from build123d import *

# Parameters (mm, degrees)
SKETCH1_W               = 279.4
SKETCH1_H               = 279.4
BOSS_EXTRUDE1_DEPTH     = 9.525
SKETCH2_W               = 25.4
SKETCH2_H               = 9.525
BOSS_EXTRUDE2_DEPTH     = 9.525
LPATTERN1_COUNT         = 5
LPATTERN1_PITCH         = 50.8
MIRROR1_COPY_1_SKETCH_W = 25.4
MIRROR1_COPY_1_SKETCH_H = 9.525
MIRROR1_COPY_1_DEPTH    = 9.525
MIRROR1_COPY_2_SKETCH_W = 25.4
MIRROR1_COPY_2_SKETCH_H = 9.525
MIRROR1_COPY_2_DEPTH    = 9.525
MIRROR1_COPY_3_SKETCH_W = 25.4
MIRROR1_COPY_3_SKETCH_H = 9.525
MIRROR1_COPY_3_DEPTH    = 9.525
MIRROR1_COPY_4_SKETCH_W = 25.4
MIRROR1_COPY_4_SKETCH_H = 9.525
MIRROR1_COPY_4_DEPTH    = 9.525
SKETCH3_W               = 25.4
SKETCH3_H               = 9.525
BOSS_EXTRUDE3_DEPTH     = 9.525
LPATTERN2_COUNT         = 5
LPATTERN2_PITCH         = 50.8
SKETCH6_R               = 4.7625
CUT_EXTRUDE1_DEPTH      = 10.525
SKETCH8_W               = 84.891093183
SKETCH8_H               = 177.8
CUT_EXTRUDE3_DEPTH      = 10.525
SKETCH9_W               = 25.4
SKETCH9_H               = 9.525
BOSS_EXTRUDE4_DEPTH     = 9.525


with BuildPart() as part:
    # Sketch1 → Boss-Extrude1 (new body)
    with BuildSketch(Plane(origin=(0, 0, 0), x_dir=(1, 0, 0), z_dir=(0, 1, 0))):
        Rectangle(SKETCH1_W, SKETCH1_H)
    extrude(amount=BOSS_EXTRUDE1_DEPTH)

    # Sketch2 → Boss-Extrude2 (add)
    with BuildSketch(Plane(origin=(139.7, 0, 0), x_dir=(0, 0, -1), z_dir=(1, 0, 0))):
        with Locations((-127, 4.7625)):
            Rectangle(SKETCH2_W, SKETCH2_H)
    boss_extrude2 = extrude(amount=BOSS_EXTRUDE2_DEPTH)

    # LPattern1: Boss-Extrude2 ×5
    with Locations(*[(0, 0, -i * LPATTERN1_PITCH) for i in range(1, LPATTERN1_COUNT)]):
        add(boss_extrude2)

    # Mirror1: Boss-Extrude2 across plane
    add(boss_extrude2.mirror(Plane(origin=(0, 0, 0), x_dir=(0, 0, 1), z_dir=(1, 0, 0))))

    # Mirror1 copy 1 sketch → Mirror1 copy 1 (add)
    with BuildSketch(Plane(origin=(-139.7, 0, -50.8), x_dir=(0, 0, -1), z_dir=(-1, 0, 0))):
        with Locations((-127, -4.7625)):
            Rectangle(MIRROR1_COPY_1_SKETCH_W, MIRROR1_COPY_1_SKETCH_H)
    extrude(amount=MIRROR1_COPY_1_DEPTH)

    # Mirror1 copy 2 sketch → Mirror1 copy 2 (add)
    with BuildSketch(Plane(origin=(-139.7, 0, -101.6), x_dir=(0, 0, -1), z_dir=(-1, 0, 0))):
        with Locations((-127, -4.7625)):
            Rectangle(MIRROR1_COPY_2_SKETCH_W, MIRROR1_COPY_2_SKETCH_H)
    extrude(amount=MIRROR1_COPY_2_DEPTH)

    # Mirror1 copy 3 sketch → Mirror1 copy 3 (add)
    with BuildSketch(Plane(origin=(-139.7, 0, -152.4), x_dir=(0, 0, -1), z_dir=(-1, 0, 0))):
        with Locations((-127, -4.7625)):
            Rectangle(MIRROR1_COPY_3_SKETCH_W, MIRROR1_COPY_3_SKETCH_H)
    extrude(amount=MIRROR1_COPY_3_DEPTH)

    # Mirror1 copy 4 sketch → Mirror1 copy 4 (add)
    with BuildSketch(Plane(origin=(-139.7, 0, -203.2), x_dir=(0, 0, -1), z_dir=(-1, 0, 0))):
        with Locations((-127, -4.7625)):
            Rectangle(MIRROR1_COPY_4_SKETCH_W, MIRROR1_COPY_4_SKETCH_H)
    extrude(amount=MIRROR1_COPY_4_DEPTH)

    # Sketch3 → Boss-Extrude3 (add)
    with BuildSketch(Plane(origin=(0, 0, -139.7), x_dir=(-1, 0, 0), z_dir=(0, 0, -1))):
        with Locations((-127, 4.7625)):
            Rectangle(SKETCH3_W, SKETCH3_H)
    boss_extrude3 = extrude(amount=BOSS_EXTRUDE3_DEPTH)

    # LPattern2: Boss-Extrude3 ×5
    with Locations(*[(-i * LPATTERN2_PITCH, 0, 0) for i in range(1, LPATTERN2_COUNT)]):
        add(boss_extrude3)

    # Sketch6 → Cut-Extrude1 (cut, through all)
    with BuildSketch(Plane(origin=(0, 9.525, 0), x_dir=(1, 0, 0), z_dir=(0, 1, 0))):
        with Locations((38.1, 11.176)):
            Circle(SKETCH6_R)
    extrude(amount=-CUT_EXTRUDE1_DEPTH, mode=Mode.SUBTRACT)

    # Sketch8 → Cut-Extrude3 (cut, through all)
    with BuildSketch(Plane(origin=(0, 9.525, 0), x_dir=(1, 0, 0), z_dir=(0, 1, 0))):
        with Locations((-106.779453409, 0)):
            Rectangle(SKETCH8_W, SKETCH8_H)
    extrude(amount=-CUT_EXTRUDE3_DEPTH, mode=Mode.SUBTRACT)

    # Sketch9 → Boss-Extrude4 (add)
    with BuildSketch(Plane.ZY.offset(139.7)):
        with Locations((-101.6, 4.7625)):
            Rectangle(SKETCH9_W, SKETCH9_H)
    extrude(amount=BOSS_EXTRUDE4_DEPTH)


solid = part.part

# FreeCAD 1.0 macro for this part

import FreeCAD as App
import Part
import Sketcher
Q = App.Units.Quantity


def add_polygon(sketch, points):
    """Adds a closed chain of lines whose ends are joined by coincident constraints."""
    first, n = sketch.GeometryCount, len(points)
    for a, b in zip(points, points[1:] + points[:1]):
        sketch.addGeometry(Part.LineSegment(App.Vector(*a, 0), App.Vector(*b, 0)), False)
    for i in range(n):
        sketch.addConstraint(Sketcher.Constraint("Coincident", first + i, 2, first + (i + 1) % n, 1))

doc = App.newDocument("Part")
params = doc.addObject("Spreadsheet::Sheet", "Params")
for row, (alias, value) in enumerate([
    ("sketch1_width", "11 in"),
    ("pad1_length", "0.375 in"),
    ("sketch2_height", "1 in"),
    ("sketch2_width", "0.375 in"),
    ("pad2_length", "0.375 in"),
    ("linearpattern_pitch", "2 in"),
    ("sketch3_height", "1 in"),
    ("sketch3_width", "0.375 in"),
    ("pad3_length", "0.375 in"),
    ("sketch4_height", "1 in"),
    ("sketch4_width", "0.375 in"),
    ("pad4_length", "0.375 in"),
    ("sketch5_height", "1 in"),
    ("sketch5_width", "0.375 in"),
    ("pad5_length", "0.375 in"),
    ("sketch6_height", "1 in"),
    ("sketch6_width", "0.375 in"),
    ("pad6_length", "0.375 in"),
    ("sketch7_width", "1 in"),
    ("sketch7_height", "0.375 in"),
    ("pad7_length", "0.375 in"),
    ("linearpattern2_pitch", "2 in"),
    ("sketch8_diameter", "0.375 in"),
    ("sketch9_height", "7 in"),
    ("sketch10_height", "1 in"),
    ("sketch10_width", "0.375 in"),
    ("pad8_length", "0.375 in"),
], start=1):
    params.set(f"A{row}", alias)
    params.set(f"B{row}", "=" + value)
    params.setAlias(f"B{row}", alias)

body = doc.addObject("PartDesign::Body", "Body")

sketch1 = doc.addObject("Sketcher::SketchObject", "Sketch")
body.addObject(sketch1)
sketch1.AttachmentSupport = (doc.XZ_Plane, [""])
sketch1.MapMode = "FlatFace"
add_polygon(sketch1, [(-139.7, -139.7), (-139.7, 139.7), (139.7, 139.7), (139.7, -139.7)])
sketch1.addConstraint(Sketcher.Constraint("Vertical", 0))
sketch1.addConstraint(Sketcher.Constraint("Horizontal", 1))
sketch1.addConstraint(Sketcher.Constraint("Vertical", 2))
sketch1.addConstraint(Sketcher.Constraint("Horizontal", 3))
sketch1.addConstraint(Sketcher.Constraint("Symmetric", 0, 2, 2, 2, -1, 1))
sketch1.addConstraint(Sketcher.Constraint("Equal", 3, 0))
sketch1.addConstraint(Sketcher.Constraint("DistanceX", 1, 1, 1, 2, Q("11 in")))
sketch1.setExpression("Constraints[10]", "Params.sketch1_width")
pad1 = doc.addObject("PartDesign::Pad", "Pad")
body.addObject(pad1)
pad1.Profile = sketch1
pad1.setExpression("Length", "Params.pad1_length")
pad1.Reversed = True

sketch2 = doc.addObject("Sketcher::SketchObject", "Sketch001")
body.addObject(sketch2)
sketch2.AttachmentSupport = (doc.YZ_Plane, [""])
sketch2.MapMode = "FlatFace"
sketch2.AttachmentOffset = App.Placement(App.Vector(0, 0, 5.5 * 25.4), App.Rotation())
add_polygon(sketch2, [(9.525, 139.7), (0, 139.7), (0, 114.3), (9.525, 114.3)])
sketch2.addConstraint(Sketcher.Constraint("Horizontal", 0))
sketch2.addConstraint(Sketcher.Constraint("Vertical", 1))
sketch2.addConstraint(Sketcher.Constraint("Horizontal", 2))
sketch2.addConstraint(Sketcher.Constraint("Vertical", 3))
sketch2.addConstraint(Sketcher.Constraint("PointOnObject", 0, 2, -2))
sketch2.addConstraint(Sketcher.Constraint("DistanceY", 1, 2, 1, 1, Q("1 in")))
sketch2.addConstraint(Sketcher.Constraint("DistanceY", -1, 1, 0, 2, Q("5.5 in")))
sketch2.addConstraint(Sketcher.Constraint("DistanceX", 0, 2, 0, 1, Q("0.375 in")))
sketch2.setExpression("Constraints[9]", "Params.sketch2_height")
sketch2.setExpression("Constraints[11]", "Params.sketch2_width")
pad2 = doc.addObject("PartDesign::Pad", "Pad001")
body.addObject(pad2)
pad2.Profile = sketch2
pad2.setExpression("Length", "Params.pad2_length")
doc.recompute()

linearpattern = doc.addObject("PartDesign::LinearPattern", "LinearPattern")
body.addObject(linearpattern)
linearpattern.Originals = [pad2]
linearpattern.Direction = (doc.Z_Axis, [""])
linearpattern.Mode = "offset"
linearpattern.setExpression("Offset", "Params.linearpattern_pitch")
linearpattern.Occurrences = 5
linearpattern.Reversed = True
body.Tip = linearpattern
doc.recompute()

mirrored = doc.addObject("PartDesign::Mirrored", "Mirrored")
body.addObject(mirrored)
mirrored.Originals = [pad2]
mirrored.MirrorPlane = (doc.YZ_Plane, [""])
body.Tip = mirrored

sketch3 = doc.addObject("Sketcher::SketchObject", "Sketch002")
body.addObject(sketch3)
sketch3.AttachmentSupport = (doc.YZ_Plane, [""])
sketch3.MapMode = "FlatFace"
sketch3.AttachmentOffset = App.Placement(App.Vector(0, 0, -5.5 * 25.4), App.Rotation())
add_polygon(sketch3, [(0, 88.9), (9.525, 88.9), (9.525, 63.5), (0, 63.5)])
sketch3.addConstraint(Sketcher.Constraint("Horizontal", 0))
sketch3.addConstraint(Sketcher.Constraint("Vertical", 1))
sketch3.addConstraint(Sketcher.Constraint("Horizontal", 2))
sketch3.addConstraint(Sketcher.Constraint("Vertical", 3))
sketch3.addConstraint(Sketcher.Constraint("PointOnObject", 2, 2, -2))
sketch3.addConstraint(Sketcher.Constraint("DistanceY", 1, 2, 1, 1, Q("1 in")))
sketch3.addConstraint(Sketcher.Constraint("DistanceY", -1, 1, 0, 2, Q("3.5 in")))
sketch3.addConstraint(Sketcher.Constraint("DistanceX", 0, 1, 0, 2, Q("0.375 in")))
sketch3.setExpression("Constraints[9]", "Params.sketch3_height")
sketch3.setExpression("Constraints[11]", "Params.sketch3_width")
pad3 = doc.addObject("PartDesign::Pad", "Pad002")
body.addObject(pad3)
pad3.Profile = sketch3
pad3.setExpression("Length", "Params.pad3_length")
pad3.Reversed = True

sketch4 = doc.addObject("Sketcher::SketchObject", "Sketch003")
body.addObject(sketch4)
sketch4.AttachmentSupport = (doc.YZ_Plane, [""])
sketch4.MapMode = "FlatFace"
sketch4.AttachmentOffset = App.Placement(App.Vector(0, 0, -5.5 * 25.4), App.Rotation())
add_polygon(sketch4, [(0, 38.1), (9.525, 38.1), (9.525, 12.7), (0, 12.7)])
sketch4.addConstraint(Sketcher.Constraint("Horizontal", 0))
sketch4.addConstraint(Sketcher.Constraint("Vertical", 1))
sketch4.addConstraint(Sketcher.Constraint("Horizontal", 2))
sketch4.addConstraint(Sketcher.Constraint("Vertical", 3))
sketch4.addConstraint(Sketcher.Constraint("PointOnObject", 2, 2, -2))
sketch4.addConstraint(Sketcher.Constraint("DistanceY", 1, 2, 1, 1, Q("1 in")))
sketch4.addConstraint(Sketcher.Constraint("DistanceY", -1, 1, 0, 2, Q("1.5 in")))
sketch4.addConstraint(Sketcher.Constraint("DistanceX", 0, 1, 0, 2, Q("0.375 in")))
sketch4.setExpression("Constraints[9]", "Params.sketch4_height")
sketch4.setExpression("Constraints[11]", "Params.sketch4_width")
pad4 = doc.addObject("PartDesign::Pad", "Pad003")
body.addObject(pad4)
pad4.Profile = sketch4
pad4.setExpression("Length", "Params.pad4_length")
pad4.Reversed = True

sketch5 = doc.addObject("Sketcher::SketchObject", "Sketch004")
body.addObject(sketch5)
sketch5.AttachmentSupport = (doc.YZ_Plane, [""])
sketch5.MapMode = "FlatFace"
sketch5.AttachmentOffset = App.Placement(App.Vector(0, 0, -5.5 * 25.4), App.Rotation())
add_polygon(sketch5, [(0, -12.7), (9.525, -12.7), (9.525, -38.1), (0, -38.1)])
sketch5.addConstraint(Sketcher.Constraint("Horizontal", 0))
sketch5.addConstraint(Sketcher.Constraint("Vertical", 1))
sketch5.addConstraint(Sketcher.Constraint("Horizontal", 2))
sketch5.addConstraint(Sketcher.Constraint("Vertical", 3))
sketch5.addConstraint(Sketcher.Constraint("PointOnObject", 2, 2, -2))
sketch5.addConstraint(Sketcher.Constraint("DistanceY", 1, 2, 1, 1, Q("1 in")))
sketch5.addConstraint(Sketcher.Constraint("DistanceY", 0, 2, -1, 1, Q("0.5 in")))
sketch5.addConstraint(Sketcher.Constraint("DistanceX", 0, 1, 0, 2, Q("0.375 in")))
sketch5.setExpression("Constraints[9]", "Params.sketch5_height")
sketch5.setExpression("Constraints[11]", "Params.sketch5_width")
pad5 = doc.addObject("PartDesign::Pad", "Pad004")
body.addObject(pad5)
pad5.Profile = sketch5
pad5.setExpression("Length", "Params.pad5_length")
pad5.Reversed = True

sketch6 = doc.addObject("Sketcher::SketchObject", "Sketch005")
body.addObject(sketch6)
sketch6.AttachmentSupport = (doc.YZ_Plane, [""])
sketch6.MapMode = "FlatFace"
sketch6.AttachmentOffset = App.Placement(App.Vector(0, 0, -5.5 * 25.4), App.Rotation())
add_polygon(sketch6, [(0, -63.5), (9.525, -63.5), (9.525, -88.9), (0, -88.9)])
sketch6.addConstraint(Sketcher.Constraint("Horizontal", 0))
sketch6.addConstraint(Sketcher.Constraint("Vertical", 1))
sketch6.addConstraint(Sketcher.Constraint("Horizontal", 2))
sketch6.addConstraint(Sketcher.Constraint("Vertical", 3))
sketch6.addConstraint(Sketcher.Constraint("PointOnObject", 2, 2, -2))
sketch6.addConstraint(Sketcher.Constraint("DistanceY", 1, 2, 1, 1, Q("1 in")))
sketch6.addConstraint(Sketcher.Constraint("DistanceY", 0, 2, -1, 1, Q("2.5 in")))
sketch6.addConstraint(Sketcher.Constraint("DistanceX", 0, 1, 0, 2, Q("0.375 in")))
sketch6.setExpression("Constraints[9]", "Params.sketch6_height")
sketch6.setExpression("Constraints[11]", "Params.sketch6_width")
pad6 = doc.addObject("PartDesign::Pad", "Pad005")
body.addObject(pad6)
pad6.Profile = sketch6
pad6.setExpression("Length", "Params.pad6_length")
pad6.Reversed = True

sketch7 = doc.addObject("Sketcher::SketchObject", "Sketch006")
body.addObject(sketch7)
sketch7.AttachmentSupport = (doc.XY_Plane, [""])
sketch7.MapMode = "FlatFace"
sketch7.AttachmentOffset = App.Placement(App.Vector(0, 0, -5.5 * 25.4), App.Rotation())
add_polygon(sketch7, [(139.7, 9.525), (139.7, 0), (114.3, 0), (114.3, 9.525)])
sketch7.addConstraint(Sketcher.Constraint("Vertical", 0))
sketch7.addConstraint(Sketcher.Constraint("Horizontal", 1))
sketch7.addConstraint(Sketcher.Constraint("Vertical", 2))
sketch7.addConstraint(Sketcher.Constraint("Horizontal", 3))
sketch7.addConstraint(Sketcher.Constraint("PointOnObject", 0, 2, -1))
sketch7.addConstraint(Sketcher.Constraint("DistanceX", 1, 2, 1, 1, Q("1 in")))
sketch7.addConstraint(Sketcher.Constraint("DistanceX", -1, 1, 0, 2, Q("5.5 in")))
sketch7.addConstraint(Sketcher.Constraint("DistanceY", 0, 2, 0, 1, Q("0.375 in")))
sketch7.setExpression("Constraints[9]", "Params.sketch7_width")
sketch7.setExpression("Constraints[11]", "Params.sketch7_height")
pad7 = doc.addObject("PartDesign::Pad", "Pad006")
body.addObject(pad7)
pad7.Profile = sketch7
pad7.setExpression("Length", "Params.pad7_length")
pad7.Reversed = True
doc.recompute()

linearpattern2 = doc.addObject("PartDesign::LinearPattern", "LinearPattern001")
body.addObject(linearpattern2)
linearpattern2.Originals = [pad7]
linearpattern2.Direction = (doc.X_Axis, [""])
linearpattern2.Mode = "offset"
linearpattern2.setExpression("Offset", "Params.linearpattern2_pitch")
linearpattern2.Occurrences = 5
linearpattern2.Reversed = True
body.Tip = linearpattern2

sketch8 = doc.addObject("Sketcher::SketchObject", "Sketch007")
body.addObject(sketch8)
sketch8.AttachmentSupport = (doc.XZ_Plane, [""])
sketch8.MapMode = "FlatFace"
sketch8.AttachmentOffset = App.Placement(App.Vector(0, 0, -0.375 * 25.4), App.Rotation())
sketch8.addGeometry(Part.Circle(App.Vector(38.1, -11.176, 0), App.Vector(0, 0, 1), 4.7625), False)
sketch8.addConstraint(Sketcher.Constraint("Diameter", 0, Q("0.375 in")))
sketch8.addConstraint(Sketcher.Constraint("DistanceX", -1, 1, 0, 3, Q("1.5 in")))
sketch8.addConstraint(Sketcher.Constraint("DistanceY", 0, 3, -1, 1, Q("0.44 in")))
sketch8.setExpression("Constraints[0]", "Params.sketch8_diameter")
pocket1 = doc.addObject("PartDesign::Pocket", "Pocket")
body.addObject(pocket1)
pocket1.Profile = sketch8
pocket1.Type = "ThroughAll"
pocket1.Reversed = True

sketch9 = doc.addObject("Sketcher::SketchObject", "Sketch008")
body.addObject(sketch9)
sketch9.AttachmentSupport = (doc.XZ_Plane, [""])
sketch9.MapMode = "FlatFace"
sketch9.AttachmentOffset = App.Placement(App.Vector(0, 0, -0.375 * 25.4), App.Rotation())
add_polygon(sketch9, [(-149.225, -88.9), (-149.225, 88.9), (-64.333907, 88.9), (-64.333907, -88.9)])
sketch9.addConstraint(Sketcher.Constraint("Vertical", 0))
sketch9.addConstraint(Sketcher.Constraint("Horizontal", 1))
sketch9.addConstraint(Sketcher.Constraint("Vertical", 2))
sketch9.addConstraint(Sketcher.Constraint("Horizontal", 3))
sketch9.addConstraint(Sketcher.Constraint("DistanceY", 0, 1, 0, 2, Q("7 in")))
sketch9.addConstraint(Sketcher.Constraint("DistanceY", -1, 1, 0, 2, Q("3.5 in")))
sketch9.addConstraint(Sketcher.Constraint("DistanceX", 0, 2, -1, 1, Q("5.875 in")))
sketch9.addConstraint(Sketcher.Constraint("DistanceX", 1, 1, 1, 2, 84.891093))
sketch9.setExpression("Constraints[8]", "Params.sketch9_height")
pocket2 = doc.addObject("PartDesign::Pocket", "Pocket001")
body.addObject(pocket2)
pocket2.Profile = sketch9
pocket2.Type = "ThroughAll"
pocket2.Reversed = True

sketch10 = doc.addObject("Sketcher::SketchObject", "Sketch009")
body.addObject(sketch10)
sketch10.AttachmentSupport = (doc.YZ_Plane, [""])
sketch10.MapMode = "FlatFace"
sketch10.AttachmentOffset = App.Placement(App.Vector(0, 0, -5.5 * 25.4), App.Rotation())
add_polygon(sketch10, [(9.525, -114.3), (0, -114.3), (0, -88.9), (9.525, -88.9)])
sketch10.addConstraint(Sketcher.Constraint("Horizontal", 0))
sketch10.addConstraint(Sketcher.Constraint("Vertical", 1))
sketch10.addConstraint(Sketcher.Constraint("Horizontal", 2))
sketch10.addConstraint(Sketcher.Constraint("Vertical", 3))
sketch10.addConstraint(Sketcher.Constraint("PointOnObject", 0, 2, -2))
sketch10.addConstraint(Sketcher.Constraint("DistanceY", 1, 1, 1, 2, Q("1 in")))
sketch10.addConstraint(Sketcher.Constraint("DistanceY", 0, 2, -1, 1, Q("4.5 in")))
sketch10.addConstraint(Sketcher.Constraint("DistanceX", 0, 2, 0, 1, Q("0.375 in")))
sketch10.setExpression("Constraints[9]", "Params.sketch10_height")
sketch10.setExpression("Constraints[11]", "Params.sketch10_width")
pad8 = doc.addObject("PartDesign::Pad", "Pad007")
body.addObject(pad8)
pad8.Profile = sketch10
pad8.setExpression("Length", "Params.pad8_length")
pad8.Reversed = True

doc.recompute()
